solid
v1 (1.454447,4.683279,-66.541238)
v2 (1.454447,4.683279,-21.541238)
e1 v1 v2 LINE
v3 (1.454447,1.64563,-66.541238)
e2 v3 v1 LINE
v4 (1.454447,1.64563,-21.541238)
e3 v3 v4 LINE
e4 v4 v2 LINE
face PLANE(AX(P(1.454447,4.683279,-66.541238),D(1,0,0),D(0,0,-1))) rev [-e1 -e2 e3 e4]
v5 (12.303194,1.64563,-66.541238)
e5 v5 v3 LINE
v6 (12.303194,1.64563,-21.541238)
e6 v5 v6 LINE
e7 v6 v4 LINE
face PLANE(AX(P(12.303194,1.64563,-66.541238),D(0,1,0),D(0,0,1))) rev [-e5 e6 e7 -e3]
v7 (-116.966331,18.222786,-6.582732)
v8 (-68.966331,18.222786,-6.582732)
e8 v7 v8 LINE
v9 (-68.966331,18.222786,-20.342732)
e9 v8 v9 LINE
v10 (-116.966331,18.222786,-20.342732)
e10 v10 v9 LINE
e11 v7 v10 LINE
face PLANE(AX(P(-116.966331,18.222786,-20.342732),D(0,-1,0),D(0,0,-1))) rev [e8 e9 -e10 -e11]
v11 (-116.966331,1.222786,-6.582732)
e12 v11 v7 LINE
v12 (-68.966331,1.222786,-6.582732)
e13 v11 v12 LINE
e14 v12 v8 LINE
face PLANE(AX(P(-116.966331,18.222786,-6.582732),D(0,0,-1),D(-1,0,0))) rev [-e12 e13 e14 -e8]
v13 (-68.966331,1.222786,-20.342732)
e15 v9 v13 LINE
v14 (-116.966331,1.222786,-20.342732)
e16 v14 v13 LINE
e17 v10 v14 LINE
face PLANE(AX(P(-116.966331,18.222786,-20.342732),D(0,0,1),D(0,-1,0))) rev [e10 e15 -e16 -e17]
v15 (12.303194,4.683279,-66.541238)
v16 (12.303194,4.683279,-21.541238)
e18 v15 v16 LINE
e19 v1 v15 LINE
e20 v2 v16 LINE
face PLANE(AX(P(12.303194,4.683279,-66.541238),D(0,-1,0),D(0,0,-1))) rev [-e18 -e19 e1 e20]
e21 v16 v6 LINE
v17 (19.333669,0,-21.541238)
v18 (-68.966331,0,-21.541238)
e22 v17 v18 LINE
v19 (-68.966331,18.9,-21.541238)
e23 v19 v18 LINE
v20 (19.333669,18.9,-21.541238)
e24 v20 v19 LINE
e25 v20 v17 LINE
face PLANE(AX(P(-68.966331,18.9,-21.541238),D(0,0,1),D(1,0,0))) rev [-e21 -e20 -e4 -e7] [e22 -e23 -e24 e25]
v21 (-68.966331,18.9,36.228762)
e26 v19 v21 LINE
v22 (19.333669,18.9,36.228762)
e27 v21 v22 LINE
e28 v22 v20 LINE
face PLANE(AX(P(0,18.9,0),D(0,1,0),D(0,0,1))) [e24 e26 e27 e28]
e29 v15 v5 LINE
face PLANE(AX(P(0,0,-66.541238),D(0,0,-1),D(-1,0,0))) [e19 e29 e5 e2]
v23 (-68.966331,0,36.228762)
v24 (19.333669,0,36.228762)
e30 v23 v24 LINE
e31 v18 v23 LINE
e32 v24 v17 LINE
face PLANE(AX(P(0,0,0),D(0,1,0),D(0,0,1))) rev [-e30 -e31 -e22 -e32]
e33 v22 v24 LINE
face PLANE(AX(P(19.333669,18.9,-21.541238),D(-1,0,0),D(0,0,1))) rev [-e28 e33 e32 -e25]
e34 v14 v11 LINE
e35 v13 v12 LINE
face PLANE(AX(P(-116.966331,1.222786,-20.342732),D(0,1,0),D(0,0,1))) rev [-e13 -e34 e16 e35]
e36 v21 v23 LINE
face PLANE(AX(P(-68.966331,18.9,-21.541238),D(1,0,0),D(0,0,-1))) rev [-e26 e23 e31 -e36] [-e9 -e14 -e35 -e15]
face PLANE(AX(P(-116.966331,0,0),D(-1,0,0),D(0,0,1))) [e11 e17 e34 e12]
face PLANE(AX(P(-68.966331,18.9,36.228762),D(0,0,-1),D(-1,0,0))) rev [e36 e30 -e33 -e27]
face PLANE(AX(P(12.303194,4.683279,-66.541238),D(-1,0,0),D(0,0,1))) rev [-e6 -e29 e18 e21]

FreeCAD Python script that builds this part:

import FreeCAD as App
import Part
import Sketcher
from FreeCAD import Vector
Q = App.Units.Quantity

doc = App.newDocument("Part")
body = doc.addObject("PartDesign::Body", "Body")

# Sketch on XZ plane
sketch1 = doc.addObject("Sketcher::SketchObject", "Sketch")
body.addObject(sketch1)
sketch1.AttachmentSupport = (doc.XZ_Plane, [""])
sketch1.MapMode = "FlatFace"
sketch1.addGeometry(Part.LineSegment(Vector(-69, -22, 0), Vector(-69, 36, 0)), False)
sketch1.addGeometry(Part.LineSegment(Vector(-69, 36, 0), Vector(19, 36, 0)), False)
sketch1.addGeometry(Part.LineSegment(Vector(19, 36, 0), Vector(19, -22, 0)), False)
sketch1.addGeometry(Part.LineSegment(Vector(19, -22, 0), Vector(-69, -22, 0)), False)
sketch1.addConstraint(Sketcher.Constraint("Coincident", 0, 2, 1, 1))
sketch1.addConstraint(Sketcher.Constraint("Coincident", 1, 2, 2, 1))
sketch1.addConstraint(Sketcher.Constraint("Coincident", 2, 2, 3, 1))
sketch1.addConstraint(Sketcher.Constraint("Coincident", 3, 2, 0, 1))
sketch1.addConstraint(Sketcher.Constraint("Vertical", 0))
sketch1.addConstraint(Sketcher.Constraint("Horizontal", 1))
sketch1.addConstraint(Sketcher.Constraint("Vertical", 2))
sketch1.addConstraint(Sketcher.Constraint("Horizontal", 3))
sketch1.addConstraint(Sketcher.Constraint("DistanceX", 1, 1, 1, 2, Q("88.3 mm")))
sketch1.addConstraint(Sketcher.Constraint("DistanceY", 0, 1, 0, 2, Q("57.77 mm")))
sketch1.addConstraint(Sketcher.Constraint("DistanceX", 0, 2, -1, 1, Q("68.966331 mm")))
sketch1.addConstraint(Sketcher.Constraint("DistanceY", -1, 1, 0, 2, Q("36.228762 mm")))
pad1 = doc.addObject("PartDesign::Pad", "Pad")
body.addObject(pad1)
pad1.Profile = sketch1
pad1.Length = 18.9
pad1.Reversed = True

# Sketch on YZ plane
sketch2 = doc.addObject("Sketcher::SketchObject", "Sketch001")
body.addObject(sketch2)
sketch2.AttachmentSupport = (doc.YZ_Plane, [""])
sketch2.MapMode = "FlatFace"
sketch2.AttachmentOffset = App.Placement(Vector(0, 0, -68.966331), App.Rotation())
sketch2.addGeometry(Part.LineSegment(Vector(18, -20, 0), Vector(1, -20, 0)), False)
sketch2.addGeometry(Part.LineSegment(Vector(1, -20, 0), Vector(1, -7, 0)), False)
sketch2.addGeometry(Part.LineSegment(Vector(1, -7, 0), Vector(18, -7, 0)), False)
sketch2.addGeometry(Part.LineSegment(Vector(18, -7, 0), Vector(18, -20, 0)), False)
sketch2.addConstraint(Sketcher.Constraint("Coincident", 0, 2, 1, 1))
sketch2.addConstraint(Sketcher.Constraint("Coincident", 1, 2, 2, 1))
sketch2.addConstraint(Sketcher.Constraint("Coincident", 2, 2, 3, 1))
sketch2.addConstraint(Sketcher.Constraint("Coincident", 3, 2, 0, 1))
sketch2.addConstraint(Sketcher.Constraint("Horizontal", 0))
sketch2.addConstraint(Sketcher.Constraint("Vertical", 1))
sketch2.addConstraint(Sketcher.Constraint("Horizontal", 2))
sketch2.addConstraint(Sketcher.Constraint("Vertical", 3))
sketch2.addConstraint(Sketcher.Constraint("DistanceX", 0, 2, 0, 1, Q("17 mm")))
sketch2.addConstraint(Sketcher.Constraint("DistanceY", 1, 1, 1, 2, Q("13.76 mm")))
sketch2.addConstraint(Sketcher.Constraint("DistanceX", -1, 1, 0, 2, Q("1.222786 mm")))
sketch2.addConstraint(Sketcher.Constraint("DistanceY", 0, 2, -1, 1, Q("20.342732 mm")))
pad2 = doc.addObject("PartDesign::Pad", "Pad001")
body.addObject(pad2)
pad2.Profile = sketch2
pad2.Length = 48
pad2.Reversed = True

# Sketch on XY plane
sketch3 = doc.addObject("Sketcher::SketchObject", "Sketch002")
body.addObject(sketch3)
sketch3.AttachmentSupport = (doc.XY_Plane, [""])
sketch3.MapMode = "FlatFace"
sketch3.AttachmentOffset = App.Placement(Vector(0, 0, -21.541238), App.Rotation())
sketch3.addGeometry(Part.LineSegment(Vector(12.3, 4.7, 0), Vector(12.3, 1.6, 0)), False)
sketch3.addGeometry(Part.LineSegment(Vector(12.3, 1.6, 0), Vector(1.5, 1.6, 0)), False)
sketch3.addGeometry(Part.LineSegment(Vector(1.5, 1.6, 0), Vector(1.5, 4.7, 0)), False)
sketch3.addGeometry(Part.LineSegment(Vector(1.5, 4.7, 0), Vector(12.3, 4.7, 0)), False)
sketch3.addConstraint(Sketcher.Constraint("Coincident", 0, 2, 1, 1))
sketch3.addConstraint(Sketcher.Constraint("Coincident", 1, 2, 2, 1))
sketch3.addConstraint(Sketcher.Constraint("Coincident", 2, 2, 3, 1))
sketch3.addConstraint(Sketcher.Constraint("Coincident", 3, 2, 0, 1))
sketch3.addConstraint(Sketcher.Constraint("Vertical", 0))
sketch3.addConstraint(Sketcher.Constraint("Horizontal", 1))
sketch3.addConstraint(Sketcher.Constraint("Vertical", 2))
sketch3.addConstraint(Sketcher.Constraint("Horizontal", 3))
sketch3.addConstraint(Sketcher.Constraint("DistanceY", 0, 2, 0, 1, Q("3.037649 mm")))
sketch3.addConstraint(Sketcher.Constraint("DistanceX", 1, 2, 1, 1, Q("10.848746 mm")))
sketch3.addConstraint(Sketcher.Constraint("DistanceY", -1, 1, 0, 2, Q("1.64563 mm")))
sketch3.addConstraint(Sketcher.Constraint("DistanceX", -1, 1, 0, 2, Q("12.303194 mm")))
pad3 = doc.addObject("PartDesign::Pad", "Pad002")
body.addObject(pad3)
pad3.Profile = sketch3
pad3.Length = 45
pad3.Reversed = True

doc.recompute()
